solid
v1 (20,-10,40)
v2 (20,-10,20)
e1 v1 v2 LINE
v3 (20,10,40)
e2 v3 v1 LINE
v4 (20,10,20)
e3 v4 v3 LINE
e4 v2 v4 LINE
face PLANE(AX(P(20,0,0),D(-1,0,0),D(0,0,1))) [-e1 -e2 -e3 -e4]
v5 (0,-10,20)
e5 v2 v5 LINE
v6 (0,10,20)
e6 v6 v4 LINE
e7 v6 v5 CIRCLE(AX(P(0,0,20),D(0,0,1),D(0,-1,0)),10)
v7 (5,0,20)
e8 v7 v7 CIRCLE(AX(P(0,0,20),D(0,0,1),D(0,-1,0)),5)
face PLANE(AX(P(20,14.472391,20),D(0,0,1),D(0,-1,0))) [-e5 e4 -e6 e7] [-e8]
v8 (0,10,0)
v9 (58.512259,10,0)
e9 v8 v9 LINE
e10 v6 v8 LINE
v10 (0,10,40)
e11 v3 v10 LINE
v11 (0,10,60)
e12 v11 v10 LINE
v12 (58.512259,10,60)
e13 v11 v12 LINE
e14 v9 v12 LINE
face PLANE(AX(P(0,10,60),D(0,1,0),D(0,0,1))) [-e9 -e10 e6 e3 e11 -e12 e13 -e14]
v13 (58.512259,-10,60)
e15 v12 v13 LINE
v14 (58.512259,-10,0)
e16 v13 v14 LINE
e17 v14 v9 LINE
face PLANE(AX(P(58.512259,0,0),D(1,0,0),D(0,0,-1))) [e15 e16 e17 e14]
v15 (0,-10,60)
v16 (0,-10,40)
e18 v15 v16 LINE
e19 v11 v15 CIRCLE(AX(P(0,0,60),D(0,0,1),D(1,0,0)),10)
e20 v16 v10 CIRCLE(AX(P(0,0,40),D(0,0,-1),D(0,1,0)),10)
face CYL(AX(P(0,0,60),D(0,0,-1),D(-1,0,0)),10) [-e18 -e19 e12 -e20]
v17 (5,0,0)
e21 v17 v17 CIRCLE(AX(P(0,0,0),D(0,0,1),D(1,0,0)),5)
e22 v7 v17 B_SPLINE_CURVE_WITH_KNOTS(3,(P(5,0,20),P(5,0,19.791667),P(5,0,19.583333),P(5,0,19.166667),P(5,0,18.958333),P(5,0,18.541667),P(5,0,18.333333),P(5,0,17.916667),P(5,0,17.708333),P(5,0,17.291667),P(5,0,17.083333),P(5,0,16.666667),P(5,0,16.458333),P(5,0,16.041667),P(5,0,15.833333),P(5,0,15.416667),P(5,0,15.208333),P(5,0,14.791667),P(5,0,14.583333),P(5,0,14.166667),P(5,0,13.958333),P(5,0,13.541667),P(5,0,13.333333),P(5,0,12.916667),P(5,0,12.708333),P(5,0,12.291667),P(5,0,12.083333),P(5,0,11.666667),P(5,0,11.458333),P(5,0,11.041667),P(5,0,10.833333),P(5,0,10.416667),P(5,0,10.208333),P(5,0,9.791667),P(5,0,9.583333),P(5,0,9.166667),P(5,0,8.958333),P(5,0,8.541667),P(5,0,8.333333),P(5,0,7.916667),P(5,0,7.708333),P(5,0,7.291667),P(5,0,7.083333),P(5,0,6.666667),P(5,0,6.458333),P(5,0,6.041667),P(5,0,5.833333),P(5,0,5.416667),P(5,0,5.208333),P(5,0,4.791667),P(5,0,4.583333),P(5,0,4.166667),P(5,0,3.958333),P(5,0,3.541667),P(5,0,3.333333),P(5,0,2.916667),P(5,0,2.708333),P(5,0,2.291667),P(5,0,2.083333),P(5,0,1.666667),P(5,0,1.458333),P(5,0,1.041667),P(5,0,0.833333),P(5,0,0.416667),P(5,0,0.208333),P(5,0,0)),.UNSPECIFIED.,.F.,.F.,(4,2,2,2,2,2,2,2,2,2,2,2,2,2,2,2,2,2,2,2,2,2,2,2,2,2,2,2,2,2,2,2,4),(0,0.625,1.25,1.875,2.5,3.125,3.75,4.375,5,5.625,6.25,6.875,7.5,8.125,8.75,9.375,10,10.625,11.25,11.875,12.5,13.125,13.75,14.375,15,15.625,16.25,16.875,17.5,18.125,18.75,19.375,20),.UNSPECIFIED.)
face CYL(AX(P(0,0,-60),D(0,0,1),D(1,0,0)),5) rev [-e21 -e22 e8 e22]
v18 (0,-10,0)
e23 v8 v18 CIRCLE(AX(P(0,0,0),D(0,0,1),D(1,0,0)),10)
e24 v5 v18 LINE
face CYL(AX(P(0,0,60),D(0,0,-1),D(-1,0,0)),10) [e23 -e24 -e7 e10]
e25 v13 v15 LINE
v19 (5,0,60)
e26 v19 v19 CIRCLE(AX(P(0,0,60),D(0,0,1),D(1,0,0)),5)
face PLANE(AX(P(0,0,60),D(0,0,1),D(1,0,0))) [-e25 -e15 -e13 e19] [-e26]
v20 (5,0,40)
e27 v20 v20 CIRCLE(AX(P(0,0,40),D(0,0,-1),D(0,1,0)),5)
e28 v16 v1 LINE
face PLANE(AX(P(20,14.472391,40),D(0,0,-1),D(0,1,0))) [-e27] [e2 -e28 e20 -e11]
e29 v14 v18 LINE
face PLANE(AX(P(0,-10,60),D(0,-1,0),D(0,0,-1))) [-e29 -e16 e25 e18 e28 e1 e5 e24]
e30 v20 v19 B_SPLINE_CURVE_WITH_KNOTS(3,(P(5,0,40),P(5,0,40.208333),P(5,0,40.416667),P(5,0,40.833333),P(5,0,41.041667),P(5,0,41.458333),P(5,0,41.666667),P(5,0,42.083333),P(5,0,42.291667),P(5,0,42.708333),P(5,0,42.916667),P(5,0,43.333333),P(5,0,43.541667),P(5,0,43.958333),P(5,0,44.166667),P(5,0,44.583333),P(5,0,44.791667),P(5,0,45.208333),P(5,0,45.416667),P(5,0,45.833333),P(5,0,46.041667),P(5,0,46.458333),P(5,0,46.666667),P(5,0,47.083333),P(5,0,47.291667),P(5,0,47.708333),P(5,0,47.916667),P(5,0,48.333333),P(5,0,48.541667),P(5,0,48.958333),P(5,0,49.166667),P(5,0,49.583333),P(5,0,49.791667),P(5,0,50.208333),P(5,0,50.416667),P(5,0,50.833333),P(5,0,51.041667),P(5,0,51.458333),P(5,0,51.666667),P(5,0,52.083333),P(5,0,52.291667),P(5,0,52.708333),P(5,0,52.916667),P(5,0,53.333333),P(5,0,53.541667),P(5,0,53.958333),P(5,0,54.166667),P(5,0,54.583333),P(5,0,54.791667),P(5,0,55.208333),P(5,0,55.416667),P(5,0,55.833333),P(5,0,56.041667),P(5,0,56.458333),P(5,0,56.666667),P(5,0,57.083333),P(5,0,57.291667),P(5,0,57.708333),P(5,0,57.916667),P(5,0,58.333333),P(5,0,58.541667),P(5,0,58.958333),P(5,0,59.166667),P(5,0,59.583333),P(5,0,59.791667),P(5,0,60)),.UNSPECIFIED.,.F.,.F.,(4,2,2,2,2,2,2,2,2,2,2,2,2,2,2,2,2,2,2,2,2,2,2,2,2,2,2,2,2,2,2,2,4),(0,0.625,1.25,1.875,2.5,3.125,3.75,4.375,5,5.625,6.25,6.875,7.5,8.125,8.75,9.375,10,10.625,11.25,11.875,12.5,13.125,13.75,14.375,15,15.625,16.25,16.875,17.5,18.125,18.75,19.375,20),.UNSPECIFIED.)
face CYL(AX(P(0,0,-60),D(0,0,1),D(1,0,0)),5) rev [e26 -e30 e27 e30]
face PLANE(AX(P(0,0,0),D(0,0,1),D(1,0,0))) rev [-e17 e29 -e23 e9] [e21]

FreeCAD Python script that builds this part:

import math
import FreeCAD as App
import Part
import Sketcher
from FreeCAD import Vector

doc = App.newDocument("Part")
params = doc.addObject("Spreadsheet::Sheet", "Params")
for row, (alias, value) in enumerate([
    ("sketch1_radius", "10 mm"),
    ("pad1_length", "60 mm"),
    ("sketch2_height", "20 mm"),
    ("pocket1_length", "20 mm"),
    ("pocket1_length2", "40 mm"),
    ("sketch3_diameter", "10 mm"),
    ("pocket2_length", "120 mm"),
    ("sketch4_width", "20 mm"),
    ("sketch4_height", "60 mm"),
    ("pad2_length", "5 mm"),
], start=1):
    params.set(f"A{row}", alias)
    params.set(f"B{row}", "=" + value)
    params.setAlias(f"B{row}", alias)

body = doc.addObject("PartDesign::Body", "Body")

# Sketch on XY plane
sketch1 = doc.addObject("Sketcher::SketchObject", "Sketch")
body.addObject(sketch1)
sketch1.AttachmentSupport = (doc.XY_Plane, [""])
sketch1.MapMode = "FlatFace"
sketch1.addGeometry(Part.ArcOfCircle(Part.Circle(Vector(0, 0, 0), Vector(0, 0, 1), 10), math.radians(90), math.radians(270)), False)
sketch1.addGeometry(Part.LineSegment(Vector(0, -10, 0), Vector(53.512259, -10, 0)), False)
sketch1.addGeometry(Part.LineSegment(Vector(53.512259, -10, 0), Vector(53.512259, 10, 0)), False)
sketch1.addGeometry(Part.LineSegment(Vector(53.512259, 10, 0), Vector(0, 10, 0)), False)
sketch1.addConstraint(Sketcher.Constraint("Tangent", 0, 2, 1, 1))
sketch1.addConstraint(Sketcher.Constraint("Coincident", 1, 2, 2, 1))
sketch1.addConstraint(Sketcher.Constraint("Coincident", 2, 2, 3, 1))
sketch1.addConstraint(Sketcher.Constraint("Tangent", 3, 2, 0, 1))
sketch1.addConstraint(Sketcher.Constraint("Horizontal", 1))
sketch1.addConstraint(Sketcher.Constraint("Vertical", 2))
sketch1.addConstraint(Sketcher.Constraint("Horizontal", 3))
sketch1.addConstraint(Sketcher.Constraint("Coincident", 0, 3, -1, 1))
sketch1.addConstraint(Sketcher.Constraint("Radius", 0, 10.0))
sketch1.addConstraint(Sketcher.Constraint("DistanceX", 1, 1, 1, 2, 53.512259))
sketch1.setExpression("Constraints[8]", "Params.sketch1_radius")
pad1 = doc.addObject("PartDesign::Pad", "Pad")
body.addObject(pad1)
pad1.Profile = sketch1
pad1.setExpression("Length", "Params.pad1_length")

# Sketch on YZ plane
sketch2 = doc.addObject("Sketcher::SketchObject", "Sketch001")
body.addObject(sketch2)
sketch2.AttachmentSupport = (doc.YZ_Plane, [""])
sketch2.MapMode = "FlatFace"
sketch2.addGeometry(Part.LineSegment(Vector(14.472391, 40, 0), Vector(-14.472391, 40, 0)), False)
sketch2.addGeometry(Part.LineSegment(Vector(-14.472391, 40, 0), Vector(-14.472391, 20, 0)), False)
sketch2.addGeometry(Part.LineSegment(Vector(-14.472391, 20, 0), Vector(14.472391, 20, 0)), False)
sketch2.addGeometry(Part.LineSegment(Vector(14.472391, 20, 0), Vector(14.472391, 40, 0)), False)
sketch2.addConstraint(Sketcher.Constraint("Coincident", 0, 2, 1, 1))
sketch2.addConstraint(Sketcher.Constraint("Coincident", 1, 2, 2, 1))
sketch2.addConstraint(Sketcher.Constraint("Coincident", 2, 2, 3, 1))
sketch2.addConstraint(Sketcher.Constraint("Coincident", 3, 2, 0, 1))
sketch2.addConstraint(Sketcher.Constraint("Horizontal", 0))
sketch2.addConstraint(Sketcher.Constraint("Vertical", 1))
sketch2.addConstraint(Sketcher.Constraint("Horizontal", 2))
sketch2.addConstraint(Sketcher.Constraint("Vertical", 3))
sketch2.addConstraint(Sketcher.Constraint("DistanceY", 1, 2, 1, 1, 20.0))
sketch2.addConstraint(Sketcher.Constraint("DistanceY", -1, 1, 0, 2, 40.0))
sketch2.addConstraint(Sketcher.Constraint("DistanceX", 0, 2, 0, 1, 28.944782))
sketch2.addConstraint(Sketcher.Constraint("DistanceX", 0, 2, -1, 1, 14.472391))
sketch2.setExpression("Constraints[8]", "Params.sketch2_height")
pocket1 = doc.addObject("PartDesign::Pocket", "Pocket")
body.addObject(pocket1)
pocket1.Profile = sketch2
pocket1.Type = "TwoLengths"
pocket1.setExpression("Length", "Params.pocket1_length")
pocket1.setExpression("Length2", "Params.pocket1_length2")
pocket1.Reversed = True

# Sketch on XY plane
sketch3 = doc.addObject("Sketcher::SketchObject", "Sketch002")
body.addObject(sketch3)
sketch3.AttachmentSupport = (doc.XY_Plane, [""])
sketch3.MapMode = "FlatFace"
sketch3.AttachmentOffset = App.Placement(Vector(0, 0, 60), App.Rotation())
sketch3.addGeometry(Part.Circle(Vector(0, 0, 0), Vector(0, 0, 1), 5), False)
sketch3.addConstraint(Sketcher.Constraint("Coincident", 0, 3, -1, 1))
sketch3.addConstraint(Sketcher.Constraint("Diameter", 0, 10.0))
sketch3.setExpression("Constraints[1]", "Params.sketch3_diameter")
pocket2 = doc.addObject("PartDesign::Pocket", "Pocket001")
body.addObject(pocket2)
pocket2.Profile = sketch3
pocket2.setExpression("Length", "Params.pocket2_length")

# Sketch on YZ plane
sketch4 = doc.addObject("Sketcher::SketchObject", "Sketch003")
body.addObject(sketch4)
sketch4.AttachmentSupport = (doc.YZ_Plane, [""])
sketch4.MapMode = "FlatFace"
sketch4.AttachmentOffset = App.Placement(Vector(0, 0, 53.512259), App.Rotation())
sketch4.addGeometry(Part.LineSegment(Vector(10, 60, 0), Vector(-10, 60, 0)), False)
sketch4.addGeometry(Part.LineSegment(Vector(-10, 60, 0), Vector(-10, 0, 0)), False)
sketch4.addGeometry(Part.LineSegment(Vector(-10, 0, 0), Vector(10, 0, 0)), False)
sketch4.addGeometry(Part.LineSegment(Vector(10, 0, 0), Vector(10, 60, 0)), False)
sketch4.addConstraint(Sketcher.Constraint("Coincident", 0, 2, 1, 1))
sketch4.addConstraint(Sketcher.Constraint("Coincident", 1, 2, 2, 1))
sketch4.addConstraint(Sketcher.Constraint("Coincident", 2, 2, 3, 1))
sketch4.addConstraint(Sketcher.Constraint("Coincident", 3, 2, 0, 1))
sketch4.addConstraint(Sketcher.Constraint("Horizontal", 0))
sketch4.addConstraint(Sketcher.Constraint("Vertical", 1))
sketch4.addConstraint(Sketcher.Constraint("Horizontal", 2))
sketch4.addConstraint(Sketcher.Constraint("Vertical", 3))
sketch4.addConstraint(Sketcher.Constraint("Symmetric", 1, 2, 2, 2, -1, 1))
sketch4.addConstraint(Sketcher.Constraint("DistanceX", 0, 2, 0, 1, 20.0))
sketch4.addConstraint(Sketcher.Constraint("DistanceY", 1, 2, 1, 1, 60.0))
sketch4.setExpression("Constraints[9]", "Params.sketch4_width")
sketch4.setExpression("Constraints[10]", "Params.sketch4_height")
pad2 = doc.addObject("PartDesign::Pad", "Pad001")
body.addObject(pad2)
pad2.Profile = sketch4
pad2.setExpression("Length", "Params.pad2_length")

doc.recompute()
